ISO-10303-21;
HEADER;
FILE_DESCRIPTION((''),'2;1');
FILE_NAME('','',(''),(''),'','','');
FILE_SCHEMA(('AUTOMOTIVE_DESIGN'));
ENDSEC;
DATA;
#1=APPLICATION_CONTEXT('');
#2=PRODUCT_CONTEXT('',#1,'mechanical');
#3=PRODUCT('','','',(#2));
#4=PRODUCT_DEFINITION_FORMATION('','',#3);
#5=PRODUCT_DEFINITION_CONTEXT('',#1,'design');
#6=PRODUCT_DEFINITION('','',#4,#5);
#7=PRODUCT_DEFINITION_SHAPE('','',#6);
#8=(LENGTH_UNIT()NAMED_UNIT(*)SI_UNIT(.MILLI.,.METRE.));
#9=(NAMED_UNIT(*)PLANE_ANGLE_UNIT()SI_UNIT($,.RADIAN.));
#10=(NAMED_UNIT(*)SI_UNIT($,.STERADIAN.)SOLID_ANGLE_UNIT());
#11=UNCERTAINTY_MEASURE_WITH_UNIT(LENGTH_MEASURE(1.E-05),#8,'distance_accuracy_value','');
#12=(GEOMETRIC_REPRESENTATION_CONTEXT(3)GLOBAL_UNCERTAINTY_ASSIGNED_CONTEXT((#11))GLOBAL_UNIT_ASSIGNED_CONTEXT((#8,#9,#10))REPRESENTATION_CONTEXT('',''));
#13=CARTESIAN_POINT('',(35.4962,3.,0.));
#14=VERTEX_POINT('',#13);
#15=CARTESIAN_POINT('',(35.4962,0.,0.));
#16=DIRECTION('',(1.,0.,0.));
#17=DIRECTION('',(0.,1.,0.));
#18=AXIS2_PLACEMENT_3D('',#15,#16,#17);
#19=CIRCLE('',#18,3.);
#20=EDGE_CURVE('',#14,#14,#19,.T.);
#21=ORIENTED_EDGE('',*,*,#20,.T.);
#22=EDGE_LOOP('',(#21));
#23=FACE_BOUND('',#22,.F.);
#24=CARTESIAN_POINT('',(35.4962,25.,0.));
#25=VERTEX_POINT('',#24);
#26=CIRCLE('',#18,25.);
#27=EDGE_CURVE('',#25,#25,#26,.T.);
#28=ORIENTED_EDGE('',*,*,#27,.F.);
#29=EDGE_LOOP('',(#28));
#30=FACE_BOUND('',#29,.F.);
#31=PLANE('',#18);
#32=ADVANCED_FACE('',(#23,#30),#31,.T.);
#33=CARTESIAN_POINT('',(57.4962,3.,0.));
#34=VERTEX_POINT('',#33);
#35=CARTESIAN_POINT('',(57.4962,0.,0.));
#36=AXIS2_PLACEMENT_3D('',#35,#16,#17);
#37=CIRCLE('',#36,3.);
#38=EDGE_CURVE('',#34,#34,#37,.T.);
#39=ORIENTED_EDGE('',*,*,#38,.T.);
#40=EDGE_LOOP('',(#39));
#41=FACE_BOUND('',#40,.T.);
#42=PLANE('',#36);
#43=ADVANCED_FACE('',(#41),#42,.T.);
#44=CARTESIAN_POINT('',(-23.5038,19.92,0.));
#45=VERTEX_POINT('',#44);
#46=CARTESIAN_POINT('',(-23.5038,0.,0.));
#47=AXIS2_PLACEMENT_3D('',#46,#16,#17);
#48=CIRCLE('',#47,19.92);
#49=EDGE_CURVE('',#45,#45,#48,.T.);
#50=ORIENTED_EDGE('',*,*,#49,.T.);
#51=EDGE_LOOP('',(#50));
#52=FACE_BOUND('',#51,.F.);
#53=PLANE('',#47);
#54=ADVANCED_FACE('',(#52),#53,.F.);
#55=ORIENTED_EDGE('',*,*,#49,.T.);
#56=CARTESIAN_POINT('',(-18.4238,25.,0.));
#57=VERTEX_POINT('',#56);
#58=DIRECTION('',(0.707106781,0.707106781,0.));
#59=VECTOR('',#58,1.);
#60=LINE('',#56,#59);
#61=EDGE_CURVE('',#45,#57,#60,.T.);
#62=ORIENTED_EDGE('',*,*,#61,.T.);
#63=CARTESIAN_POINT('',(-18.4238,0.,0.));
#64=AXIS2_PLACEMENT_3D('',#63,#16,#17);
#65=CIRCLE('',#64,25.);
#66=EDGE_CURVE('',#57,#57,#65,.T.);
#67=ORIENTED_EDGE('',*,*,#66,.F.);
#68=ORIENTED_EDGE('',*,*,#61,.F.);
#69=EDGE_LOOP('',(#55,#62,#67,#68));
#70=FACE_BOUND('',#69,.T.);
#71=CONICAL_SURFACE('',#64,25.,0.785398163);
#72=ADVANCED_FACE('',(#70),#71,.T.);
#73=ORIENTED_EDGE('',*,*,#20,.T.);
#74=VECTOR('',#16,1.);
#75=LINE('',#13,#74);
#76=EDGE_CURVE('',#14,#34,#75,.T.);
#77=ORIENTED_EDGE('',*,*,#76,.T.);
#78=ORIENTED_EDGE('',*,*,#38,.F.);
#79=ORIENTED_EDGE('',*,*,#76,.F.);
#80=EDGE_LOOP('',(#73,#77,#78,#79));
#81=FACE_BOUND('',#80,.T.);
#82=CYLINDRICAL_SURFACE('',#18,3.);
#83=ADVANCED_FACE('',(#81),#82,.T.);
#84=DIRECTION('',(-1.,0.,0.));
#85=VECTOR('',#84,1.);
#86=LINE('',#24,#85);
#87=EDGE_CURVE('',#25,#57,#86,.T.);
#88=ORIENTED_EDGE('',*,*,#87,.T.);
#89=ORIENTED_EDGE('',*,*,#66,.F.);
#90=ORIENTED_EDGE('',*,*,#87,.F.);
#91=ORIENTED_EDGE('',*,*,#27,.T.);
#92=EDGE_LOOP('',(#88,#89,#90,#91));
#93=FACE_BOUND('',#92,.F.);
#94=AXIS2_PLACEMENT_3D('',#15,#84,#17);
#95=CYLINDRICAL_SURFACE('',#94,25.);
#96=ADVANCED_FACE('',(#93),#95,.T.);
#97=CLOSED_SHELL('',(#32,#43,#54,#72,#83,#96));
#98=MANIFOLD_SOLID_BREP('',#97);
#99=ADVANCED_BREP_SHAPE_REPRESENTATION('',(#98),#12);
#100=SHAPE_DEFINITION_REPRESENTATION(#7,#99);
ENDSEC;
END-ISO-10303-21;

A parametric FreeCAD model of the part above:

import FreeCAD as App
import Part
import Sketcher
from FreeCAD import Vector
Q = App.Units.Quantity


def edges_at(feature, points):
    """Names of the edges that pass closest to the given points."""
    edges = feature.Shape.Edges
    near = lambda p: min(range(len(edges)), key=lambda i: edges[i].distToShape(Part.Vertex(*p))[0])
    return sorted({f"Edge{near(p) + 1}" for p in points})

doc = App.newDocument("Part")
params = doc.addObject("Spreadsheet::Sheet", "Params")
for row, (alias, value) in enumerate([
    ("sketch1_width", "22 mm"),
    ("sketch1_width2", "59 mm"),
    ("sketch1_height", "25 mm"),
    ("revolution_angle", "360 deg"),
    ("chamfer_size", "5.08 mm"),
], start=1):
    params.set(f"A{row}", alias)
    params.set(f"B{row}", "=" + value)
    params.setAlias(f"B{row}", alias)

body = doc.addObject("PartDesign::Body", "Body")

sketch1 = body.newObject("Sketcher::SketchObject", "Sketch")
sketch1.AttachmentSupport = (doc.getObject("XY_Plane"), [""])
sketch1.MapMode = "FlatFace"
sketch1.addGeometry([
    Part.LineSegment(Vector(-23.5, 25, 0), Vector(-23.5, 0, 0)),
    Part.LineSegment(Vector(-23.5, 0, 0), Vector(57.5, 0, 0)),
    Part.LineSegment(Vector(57.5, 0, 0), Vector(57.5, 3, 0)),
    Part.LineSegment(Vector(57.5, 3, 0), Vector(35.5, 3, 0)),
    Part.LineSegment(Vector(35.5, 3, 0), Vector(35.5, 25, 0)),
    Part.LineSegment(Vector(35.5, 25, 0), Vector(-23.5, 25, 0)),
], False)
sketch1.addConstraint([
    Sketcher.Constraint("Coincident", 0, 2, 1, 1),
    Sketcher.Constraint("Coincident", 1, 2, 2, 1),
    Sketcher.Constraint("Coincident", 2, 2, 3, 1),
    Sketcher.Constraint("Coincident", 3, 2, 4, 1),
    Sketcher.Constraint("Coincident", 4, 2, 5, 1),
    Sketcher.Constraint("Coincident", 5, 2, 0, 1),
    Sketcher.Constraint("Vertical", 0),
    Sketcher.Constraint("Horizontal", 1),
    Sketcher.Constraint("Vertical", 2),
    Sketcher.Constraint("Horizontal", 3),
    Sketcher.Constraint("Vertical", 4),
    Sketcher.Constraint("Horizontal", 5),
    Sketcher.Constraint("PointOnObject", 0, 2, -1),
    Sketcher.Constraint("Equal", 3, 4),
    Sketcher.Constraint("DistanceX", 3, 2, 3, 1, Q("22 mm")),
    Sketcher.Constraint("DistanceX", 5, 2, 5, 1, Q("59 mm")),
    Sketcher.Constraint("DistanceY", 0, 2, 0, 1, Q("25 mm")),
    Sketcher.Constraint("DistanceX", 0, 2, -1, 1, Q("23.5038 mm")),
])
sketch1.setExpression("Constraints[14]", "Params.sketch1_width")
sketch1.setExpression("Constraints[15]", "Params.sketch1_width2")
sketch1.setExpression("Constraints[16]", "Params.sketch1_height")
revolution = body.newObject("PartDesign::Revolution", "Revolution")
revolution.Profile = sketch1
revolution.ReferenceAxis = (sketch1, ["H_Axis"])
revolution.setExpression("Angle", "Params.revolution_angle")
doc.recompute()

chamfer = body.newObject("PartDesign::Chamfer", "Chamfer")
chamfer.Base = (revolution, edges_at(revolution, [(-23.504, -25, 0)]))
chamfer.setExpression("Size", "Params.chamfer_size")

doc.recompute()
